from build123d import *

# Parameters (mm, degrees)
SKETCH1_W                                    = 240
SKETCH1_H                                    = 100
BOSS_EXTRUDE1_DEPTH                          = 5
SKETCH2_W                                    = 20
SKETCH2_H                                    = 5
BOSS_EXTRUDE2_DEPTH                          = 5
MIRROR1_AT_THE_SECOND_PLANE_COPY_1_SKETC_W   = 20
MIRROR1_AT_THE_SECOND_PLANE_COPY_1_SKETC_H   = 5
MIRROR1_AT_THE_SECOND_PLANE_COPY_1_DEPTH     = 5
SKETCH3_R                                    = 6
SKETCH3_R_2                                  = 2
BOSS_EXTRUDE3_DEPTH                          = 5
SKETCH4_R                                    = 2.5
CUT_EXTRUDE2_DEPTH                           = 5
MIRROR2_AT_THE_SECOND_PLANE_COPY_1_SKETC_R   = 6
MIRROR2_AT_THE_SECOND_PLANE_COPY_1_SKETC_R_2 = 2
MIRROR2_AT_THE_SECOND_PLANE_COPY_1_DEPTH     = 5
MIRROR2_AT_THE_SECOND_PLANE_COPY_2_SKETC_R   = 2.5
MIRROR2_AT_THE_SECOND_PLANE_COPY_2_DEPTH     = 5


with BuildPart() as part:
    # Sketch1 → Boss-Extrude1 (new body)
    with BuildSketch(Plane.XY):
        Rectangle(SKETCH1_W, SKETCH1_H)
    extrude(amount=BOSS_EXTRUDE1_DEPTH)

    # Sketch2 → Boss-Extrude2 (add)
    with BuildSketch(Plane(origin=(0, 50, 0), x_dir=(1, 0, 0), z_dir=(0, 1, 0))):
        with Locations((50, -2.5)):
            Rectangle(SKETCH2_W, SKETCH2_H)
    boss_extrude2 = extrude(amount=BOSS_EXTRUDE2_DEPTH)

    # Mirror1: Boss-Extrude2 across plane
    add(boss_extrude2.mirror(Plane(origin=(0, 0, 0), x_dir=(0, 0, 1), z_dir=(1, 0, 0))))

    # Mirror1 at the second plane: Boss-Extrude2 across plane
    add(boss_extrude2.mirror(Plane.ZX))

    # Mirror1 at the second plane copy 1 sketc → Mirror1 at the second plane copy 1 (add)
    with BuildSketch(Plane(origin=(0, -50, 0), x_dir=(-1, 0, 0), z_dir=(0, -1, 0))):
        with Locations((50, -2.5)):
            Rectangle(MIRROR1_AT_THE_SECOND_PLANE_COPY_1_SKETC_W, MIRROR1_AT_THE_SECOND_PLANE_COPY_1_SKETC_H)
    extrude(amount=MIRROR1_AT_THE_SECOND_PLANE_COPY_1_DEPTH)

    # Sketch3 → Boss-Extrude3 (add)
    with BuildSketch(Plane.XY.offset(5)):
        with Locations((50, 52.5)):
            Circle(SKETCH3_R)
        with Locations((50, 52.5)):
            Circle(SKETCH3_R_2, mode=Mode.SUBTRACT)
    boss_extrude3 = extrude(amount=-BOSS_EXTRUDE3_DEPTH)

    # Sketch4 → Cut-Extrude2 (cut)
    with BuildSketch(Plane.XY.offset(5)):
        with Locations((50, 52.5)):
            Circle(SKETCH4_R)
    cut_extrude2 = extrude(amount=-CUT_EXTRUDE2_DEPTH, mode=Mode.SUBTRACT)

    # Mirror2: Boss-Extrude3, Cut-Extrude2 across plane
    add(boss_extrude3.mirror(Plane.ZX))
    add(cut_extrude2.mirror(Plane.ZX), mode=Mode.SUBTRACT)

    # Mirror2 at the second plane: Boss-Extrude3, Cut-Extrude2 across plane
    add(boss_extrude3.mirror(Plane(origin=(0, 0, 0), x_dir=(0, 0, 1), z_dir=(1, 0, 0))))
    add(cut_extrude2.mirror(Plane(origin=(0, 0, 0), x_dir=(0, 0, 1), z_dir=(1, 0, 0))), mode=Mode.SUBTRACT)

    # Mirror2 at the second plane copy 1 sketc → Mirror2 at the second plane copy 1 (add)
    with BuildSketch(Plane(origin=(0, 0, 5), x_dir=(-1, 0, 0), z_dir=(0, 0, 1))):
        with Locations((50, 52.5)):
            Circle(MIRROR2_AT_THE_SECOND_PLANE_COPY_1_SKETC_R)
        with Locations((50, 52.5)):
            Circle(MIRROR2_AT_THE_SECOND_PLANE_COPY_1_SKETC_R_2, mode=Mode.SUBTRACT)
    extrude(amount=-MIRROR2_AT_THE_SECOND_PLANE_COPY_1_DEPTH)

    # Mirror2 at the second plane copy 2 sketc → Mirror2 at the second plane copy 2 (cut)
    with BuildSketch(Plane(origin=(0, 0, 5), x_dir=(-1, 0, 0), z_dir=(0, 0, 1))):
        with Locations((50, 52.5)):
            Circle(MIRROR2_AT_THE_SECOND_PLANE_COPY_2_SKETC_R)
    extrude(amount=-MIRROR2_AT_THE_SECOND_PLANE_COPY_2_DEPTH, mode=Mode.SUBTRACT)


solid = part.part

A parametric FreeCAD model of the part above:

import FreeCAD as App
import Part
import Sketcher
from FreeCAD import Vector
Q = App.Units.Quantity

doc = App.newDocument("Part")
body = doc.addObject("PartDesign::Body", "Body")

sketch1 = doc.addObject("Sketcher::SketchObject", "Sketch")
body.addObject(sketch1)
sketch1.AttachmentSupport = (doc.XY_Plane, [""])
sketch1.MapMode = "FlatFace"
sketch1.addGeometry([
    Part.LineSegment(Vector(-120, 50, 0), Vector(-120, -50, 0)),
    Part.LineSegment(Vector(-120, -50, 0), Vector(120, -50, 0)),
    Part.LineSegment(Vector(120, -50, 0), Vector(120, 50, 0)),
    Part.LineSegment(Vector(120, 50, 0), Vector(-120, 50, 0)),
], False)
sketch1.addConstraint([
    Sketcher.Constraint("Coincident", 0, 2, 1, 1),
    Sketcher.Constraint("Coincident", 1, 2, 2, 1),
    Sketcher.Constraint("Coincident", 2, 2, 3, 1),
    Sketcher.Constraint("Coincident", 3, 2, 0, 1),
    Sketcher.Constraint("Vertical", 0),
    Sketcher.Constraint("Horizontal", 1),
    Sketcher.Constraint("Vertical", 2),
    Sketcher.Constraint("Horizontal", 3),
    Sketcher.Constraint("Symmetric", 0, 2, 2, 2, -1, 1),
    Sketcher.Constraint("DistanceX", 1, 1, 1, 2, Q("240 mm")),
    Sketcher.Constraint("DistanceY", 0, 2, 0, 1, Q("100 mm")),
])
pad1 = doc.addObject("PartDesign::Pad", "Pad")
body.addObject(pad1)
pad1.Profile = sketch1
pad1.Length = 5

sketch2 = doc.addObject("Sketcher::SketchObject", "Sketch001")
body.addObject(sketch2)
sketch2.AttachmentSupport = (doc.XZ_Plane, [""])
sketch2.MapMode = "FlatFace"
sketch2.AttachmentOffset = App.Placement(Vector(0, 0, -50), App.Rotation())
sketch2.addGeometry([
    Part.LineSegment(Vector(40, 0, 0), Vector(40, 5, 0)),
    Part.LineSegment(Vector(40, 5, 0), Vector(60, 5, 0)),
    Part.LineSegment(Vector(60, 5, 0), Vector(60, 0, 0)),
    Part.LineSegment(Vector(60, 0, 0), Vector(40, 0, 0)),
], False)
sketch2.addConstraint([
    Sketcher.Constraint("Coincident", 0, 2, 1, 1),
    Sketcher.Constraint("Coincident", 1, 2, 2, 1),
    Sketcher.Constraint("Coincident", 2, 2, 3, 1),
    Sketcher.Constraint("Coincident", 3, 2, 0, 1),
    Sketcher.Constraint("Vertical", 0),
    Sketcher.Constraint("Horizontal", 1),
    Sketcher.Constraint("Vertical", 2),
    Sketcher.Constraint("Horizontal", 3),
    Sketcher.Constraint("PointOnObject", 2, 2, -1),
    Sketcher.Constraint("DistanceX", 1, 1, 1, 2, Q("20 mm")),
    Sketcher.Constraint("DistanceY", 0, 1, 0, 2, Q("5 mm")),
    Sketcher.Constraint("DistanceX", -1, 1, 0, 2, Q("40 mm")),
])
pad2 = doc.addObject("PartDesign::Pad", "Pad001")
body.addObject(pad2)
pad2.Profile = sketch2
pad2.Length = 5
pad2.Reversed = True
doc.recompute()

mirrored = doc.addObject("PartDesign::Mirrored", "Mirrored")
body.addObject(mirrored)
mirrored.Originals = [pad2]
mirrored.MirrorPlane = (doc.YZ_Plane, [""])
body.Tip = mirrored
doc.recompute()

mirrored2 = doc.addObject("PartDesign::Mirrored", "Mirrored001")
body.addObject(mirrored2)
mirrored2.Originals = [pad2]
mirrored2.MirrorPlane = (doc.XZ_Plane, [""])
body.Tip = mirrored2

sketch3 = doc.addObject("Sketcher::SketchObject", "Sketch002")
body.addObject(sketch3)
sketch3.AttachmentSupport = (doc.XZ_Plane, [""])
sketch3.MapMode = "FlatFace"
sketch3.AttachmentOffset = App.Placement(Vector(0, 0, 50), App.Rotation())
sketch3.addGeometry([
    Part.LineSegment(Vector(-40, 0, 0), Vector(-40, 5, 0)),
    Part.LineSegment(Vector(-40, 5, 0), Vector(-60, 5, 0)),
    Part.LineSegment(Vector(-60, 5, 0), Vector(-60, 0, 0)),
    Part.LineSegment(Vector(-60, 0, 0), Vector(-40, 0, 0)),
], False)
sketch3.addConstraint([
    Sketcher.Constraint("Coincident", 0, 2, 1, 1),
    Sketcher.Constraint("Coincident", 1, 2, 2, 1),
    Sketcher.Constraint("Coincident", 2, 2, 3, 1),
    Sketcher.Constraint("Coincident", 3, 2, 0, 1),
    Sketcher.Constraint("Vertical", 0),
    Sketcher.Constraint("Horizontal", 1),
    Sketcher.Constraint("Vertical", 2),
    Sketcher.Constraint("Horizontal", 3),
    Sketcher.Constraint("PointOnObject", 2, 2, -1),
    Sketcher.Constraint("DistanceX", 1, 2, 1, 1, Q("20 mm")),
    Sketcher.Constraint("DistanceY", 0, 1, 0, 2, Q("5 mm")),
    Sketcher.Constraint("DistanceX", 0, 2, -1, 1, Q("40 mm")),
])
pad3 = doc.addObject("PartDesign::Pad", "Pad002")
body.addObject(pad3)
pad3.Profile = sketch3
pad3.Length = 5

sketch4 = doc.addObject("Sketcher::SketchObject", "Sketch003")
body.addObject(sketch4)
sketch4.AttachmentSupport = (doc.XY_Plane, [""])
sketch4.MapMode = "FlatFace"
sketch4.AttachmentOffset = App.Placement(Vector(0, 0, 5), App.Rotation())
sketch4.addGeometry([
    Part.Circle(Vector(50, 52.5, 0), Vector(0, 0, 1), 6),
    Part.Circle(Vector(50, 52.5, 0), Vector(0, 0, 1), 2),
], False)
sketch4.addConstraint([
    Sketcher.Constraint("Coincident", 1, 3, 0, 3),
    Sketcher.Constraint("Diameter", 0, Q("12 mm")),
    Sketcher.Constraint("Diameter", 1, Q("4 mm")),
    Sketcher.Constraint("DistanceX", -1, 1, 0, 3, Q("50 mm")),
    Sketcher.Constraint("DistanceY", -1, 1, 0, 3, Q("52.5 mm")),
])
pad4 = doc.addObject("PartDesign::Pad", "Pad003")
body.addObject(pad4)
pad4.Profile = sketch4
pad4.Length = 5
pad4.Reversed = True

sketch5 = doc.addObject("Sketcher::SketchObject", "Sketch004")
body.addObject(sketch5)
sketch5.AttachmentSupport = (doc.XY_Plane, [""])
sketch5.MapMode = "FlatFace"
sketch5.AttachmentOffset = App.Placement(Vector(0, 0, 5), App.Rotation())
sketch5.addGeometry(Part.Circle(Vector(50, 52.5, 0), Vector(0, 0, 1), 2.5), False)
sketch5.addConstraint([
    Sketcher.Constraint("Diameter", 0, Q("5 mm")),
    Sketcher.Constraint("DistanceX", -1, 1, 0, 3, Q("50 mm")),
    Sketcher.Constraint("DistanceY", -1, 1, 0, 3, Q("52.5 mm")),
])
pocket1 = doc.addObject("PartDesign::Pocket", "Pocket")
body.addObject(pocket1)
pocket1.Profile = sketch5
pocket1.Length = 5
doc.recompute()

mirrored3 = doc.addObject("PartDesign::Mirrored", "Mirrored002")
body.addObject(mirrored3)
mirrored3.Originals = [pad4, pocket1]
mirrored3.MirrorPlane = (doc.XZ_Plane, [""])
body.Tip = mirrored3
doc.recompute()

mirrored4 = doc.addObject("PartDesign::Mirrored", "Mirrored003")
body.addObject(mirrored4)
mirrored4.Originals = [pad4, pocket1]
mirrored4.MirrorPlane = (doc.YZ_Plane, [""])
body.Tip = mirrored4

sketch6 = doc.addObject("Sketcher::SketchObject", "Sketch005")
body.addObject(sketch6)
sketch6.AttachmentSupport = (doc.XY_Plane, [""])
sketch6.MapMode = "FlatFace"
sketch6.AttachmentOffset = App.Placement(Vector(0, 0, 5), App.Rotation())
sketch6.addGeometry([
    Part.Circle(Vector(-50, -52.5, 0), Vector(0, 0, 1), 6),
    Part.Circle(Vector(-50, -52.5, 0), Vector(0, 0, 1), 2),
], False)
sketch6.addConstraint([
    Sketcher.Constraint("Coincident", 1, 3, 0, 3),
    Sketcher.Constraint("Diameter", 0, Q("12 mm")),
    Sketcher.Constraint("Diameter", 1, Q("4 mm")),
    Sketcher.Constraint("DistanceX", 0, 3, -1, 1, Q("50 mm")),
    Sketcher.Constraint("DistanceY", 0, 3, -1, 1, Q("52.5 mm")),
])
pad5 = doc.addObject("PartDesign::Pad", "Pad004")
body.addObject(pad5)
pad5.Profile = sketch6
pad5.Length = 5
pad5.Reversed = True

sketch7 = doc.addObject("Sketcher::SketchObject", "Sketch006")
body.addObject(sketch7)
sketch7.AttachmentSupport = (doc.XY_Plane, [""])
sketch7.MapMode = "FlatFace"
sketch7.AttachmentOffset = App.Placement(Vector(0, 0, 5), App.Rotation())
sketch7.addGeometry(Part.Circle(Vector(-50, -52.5, 0), Vector(0, 0, 1), 2.5), False)
sketch7.addConstraint([
    Sketcher.Constraint("Diameter", 0, Q("5 mm")),
    Sketcher.Constraint("DistanceX", 0, 3, -1, 1, Q("50 mm")),
    Sketcher.Constraint("DistanceY", 0, 3, -1, 1, Q("52.5 mm")),
])
pocket2 = doc.addObject("PartDesign::Pocket", "Pocket001")
body.addObject(pocket2)
pocket2.Profile = sketch7
pocket2.Length = 5

doc.recompute()
